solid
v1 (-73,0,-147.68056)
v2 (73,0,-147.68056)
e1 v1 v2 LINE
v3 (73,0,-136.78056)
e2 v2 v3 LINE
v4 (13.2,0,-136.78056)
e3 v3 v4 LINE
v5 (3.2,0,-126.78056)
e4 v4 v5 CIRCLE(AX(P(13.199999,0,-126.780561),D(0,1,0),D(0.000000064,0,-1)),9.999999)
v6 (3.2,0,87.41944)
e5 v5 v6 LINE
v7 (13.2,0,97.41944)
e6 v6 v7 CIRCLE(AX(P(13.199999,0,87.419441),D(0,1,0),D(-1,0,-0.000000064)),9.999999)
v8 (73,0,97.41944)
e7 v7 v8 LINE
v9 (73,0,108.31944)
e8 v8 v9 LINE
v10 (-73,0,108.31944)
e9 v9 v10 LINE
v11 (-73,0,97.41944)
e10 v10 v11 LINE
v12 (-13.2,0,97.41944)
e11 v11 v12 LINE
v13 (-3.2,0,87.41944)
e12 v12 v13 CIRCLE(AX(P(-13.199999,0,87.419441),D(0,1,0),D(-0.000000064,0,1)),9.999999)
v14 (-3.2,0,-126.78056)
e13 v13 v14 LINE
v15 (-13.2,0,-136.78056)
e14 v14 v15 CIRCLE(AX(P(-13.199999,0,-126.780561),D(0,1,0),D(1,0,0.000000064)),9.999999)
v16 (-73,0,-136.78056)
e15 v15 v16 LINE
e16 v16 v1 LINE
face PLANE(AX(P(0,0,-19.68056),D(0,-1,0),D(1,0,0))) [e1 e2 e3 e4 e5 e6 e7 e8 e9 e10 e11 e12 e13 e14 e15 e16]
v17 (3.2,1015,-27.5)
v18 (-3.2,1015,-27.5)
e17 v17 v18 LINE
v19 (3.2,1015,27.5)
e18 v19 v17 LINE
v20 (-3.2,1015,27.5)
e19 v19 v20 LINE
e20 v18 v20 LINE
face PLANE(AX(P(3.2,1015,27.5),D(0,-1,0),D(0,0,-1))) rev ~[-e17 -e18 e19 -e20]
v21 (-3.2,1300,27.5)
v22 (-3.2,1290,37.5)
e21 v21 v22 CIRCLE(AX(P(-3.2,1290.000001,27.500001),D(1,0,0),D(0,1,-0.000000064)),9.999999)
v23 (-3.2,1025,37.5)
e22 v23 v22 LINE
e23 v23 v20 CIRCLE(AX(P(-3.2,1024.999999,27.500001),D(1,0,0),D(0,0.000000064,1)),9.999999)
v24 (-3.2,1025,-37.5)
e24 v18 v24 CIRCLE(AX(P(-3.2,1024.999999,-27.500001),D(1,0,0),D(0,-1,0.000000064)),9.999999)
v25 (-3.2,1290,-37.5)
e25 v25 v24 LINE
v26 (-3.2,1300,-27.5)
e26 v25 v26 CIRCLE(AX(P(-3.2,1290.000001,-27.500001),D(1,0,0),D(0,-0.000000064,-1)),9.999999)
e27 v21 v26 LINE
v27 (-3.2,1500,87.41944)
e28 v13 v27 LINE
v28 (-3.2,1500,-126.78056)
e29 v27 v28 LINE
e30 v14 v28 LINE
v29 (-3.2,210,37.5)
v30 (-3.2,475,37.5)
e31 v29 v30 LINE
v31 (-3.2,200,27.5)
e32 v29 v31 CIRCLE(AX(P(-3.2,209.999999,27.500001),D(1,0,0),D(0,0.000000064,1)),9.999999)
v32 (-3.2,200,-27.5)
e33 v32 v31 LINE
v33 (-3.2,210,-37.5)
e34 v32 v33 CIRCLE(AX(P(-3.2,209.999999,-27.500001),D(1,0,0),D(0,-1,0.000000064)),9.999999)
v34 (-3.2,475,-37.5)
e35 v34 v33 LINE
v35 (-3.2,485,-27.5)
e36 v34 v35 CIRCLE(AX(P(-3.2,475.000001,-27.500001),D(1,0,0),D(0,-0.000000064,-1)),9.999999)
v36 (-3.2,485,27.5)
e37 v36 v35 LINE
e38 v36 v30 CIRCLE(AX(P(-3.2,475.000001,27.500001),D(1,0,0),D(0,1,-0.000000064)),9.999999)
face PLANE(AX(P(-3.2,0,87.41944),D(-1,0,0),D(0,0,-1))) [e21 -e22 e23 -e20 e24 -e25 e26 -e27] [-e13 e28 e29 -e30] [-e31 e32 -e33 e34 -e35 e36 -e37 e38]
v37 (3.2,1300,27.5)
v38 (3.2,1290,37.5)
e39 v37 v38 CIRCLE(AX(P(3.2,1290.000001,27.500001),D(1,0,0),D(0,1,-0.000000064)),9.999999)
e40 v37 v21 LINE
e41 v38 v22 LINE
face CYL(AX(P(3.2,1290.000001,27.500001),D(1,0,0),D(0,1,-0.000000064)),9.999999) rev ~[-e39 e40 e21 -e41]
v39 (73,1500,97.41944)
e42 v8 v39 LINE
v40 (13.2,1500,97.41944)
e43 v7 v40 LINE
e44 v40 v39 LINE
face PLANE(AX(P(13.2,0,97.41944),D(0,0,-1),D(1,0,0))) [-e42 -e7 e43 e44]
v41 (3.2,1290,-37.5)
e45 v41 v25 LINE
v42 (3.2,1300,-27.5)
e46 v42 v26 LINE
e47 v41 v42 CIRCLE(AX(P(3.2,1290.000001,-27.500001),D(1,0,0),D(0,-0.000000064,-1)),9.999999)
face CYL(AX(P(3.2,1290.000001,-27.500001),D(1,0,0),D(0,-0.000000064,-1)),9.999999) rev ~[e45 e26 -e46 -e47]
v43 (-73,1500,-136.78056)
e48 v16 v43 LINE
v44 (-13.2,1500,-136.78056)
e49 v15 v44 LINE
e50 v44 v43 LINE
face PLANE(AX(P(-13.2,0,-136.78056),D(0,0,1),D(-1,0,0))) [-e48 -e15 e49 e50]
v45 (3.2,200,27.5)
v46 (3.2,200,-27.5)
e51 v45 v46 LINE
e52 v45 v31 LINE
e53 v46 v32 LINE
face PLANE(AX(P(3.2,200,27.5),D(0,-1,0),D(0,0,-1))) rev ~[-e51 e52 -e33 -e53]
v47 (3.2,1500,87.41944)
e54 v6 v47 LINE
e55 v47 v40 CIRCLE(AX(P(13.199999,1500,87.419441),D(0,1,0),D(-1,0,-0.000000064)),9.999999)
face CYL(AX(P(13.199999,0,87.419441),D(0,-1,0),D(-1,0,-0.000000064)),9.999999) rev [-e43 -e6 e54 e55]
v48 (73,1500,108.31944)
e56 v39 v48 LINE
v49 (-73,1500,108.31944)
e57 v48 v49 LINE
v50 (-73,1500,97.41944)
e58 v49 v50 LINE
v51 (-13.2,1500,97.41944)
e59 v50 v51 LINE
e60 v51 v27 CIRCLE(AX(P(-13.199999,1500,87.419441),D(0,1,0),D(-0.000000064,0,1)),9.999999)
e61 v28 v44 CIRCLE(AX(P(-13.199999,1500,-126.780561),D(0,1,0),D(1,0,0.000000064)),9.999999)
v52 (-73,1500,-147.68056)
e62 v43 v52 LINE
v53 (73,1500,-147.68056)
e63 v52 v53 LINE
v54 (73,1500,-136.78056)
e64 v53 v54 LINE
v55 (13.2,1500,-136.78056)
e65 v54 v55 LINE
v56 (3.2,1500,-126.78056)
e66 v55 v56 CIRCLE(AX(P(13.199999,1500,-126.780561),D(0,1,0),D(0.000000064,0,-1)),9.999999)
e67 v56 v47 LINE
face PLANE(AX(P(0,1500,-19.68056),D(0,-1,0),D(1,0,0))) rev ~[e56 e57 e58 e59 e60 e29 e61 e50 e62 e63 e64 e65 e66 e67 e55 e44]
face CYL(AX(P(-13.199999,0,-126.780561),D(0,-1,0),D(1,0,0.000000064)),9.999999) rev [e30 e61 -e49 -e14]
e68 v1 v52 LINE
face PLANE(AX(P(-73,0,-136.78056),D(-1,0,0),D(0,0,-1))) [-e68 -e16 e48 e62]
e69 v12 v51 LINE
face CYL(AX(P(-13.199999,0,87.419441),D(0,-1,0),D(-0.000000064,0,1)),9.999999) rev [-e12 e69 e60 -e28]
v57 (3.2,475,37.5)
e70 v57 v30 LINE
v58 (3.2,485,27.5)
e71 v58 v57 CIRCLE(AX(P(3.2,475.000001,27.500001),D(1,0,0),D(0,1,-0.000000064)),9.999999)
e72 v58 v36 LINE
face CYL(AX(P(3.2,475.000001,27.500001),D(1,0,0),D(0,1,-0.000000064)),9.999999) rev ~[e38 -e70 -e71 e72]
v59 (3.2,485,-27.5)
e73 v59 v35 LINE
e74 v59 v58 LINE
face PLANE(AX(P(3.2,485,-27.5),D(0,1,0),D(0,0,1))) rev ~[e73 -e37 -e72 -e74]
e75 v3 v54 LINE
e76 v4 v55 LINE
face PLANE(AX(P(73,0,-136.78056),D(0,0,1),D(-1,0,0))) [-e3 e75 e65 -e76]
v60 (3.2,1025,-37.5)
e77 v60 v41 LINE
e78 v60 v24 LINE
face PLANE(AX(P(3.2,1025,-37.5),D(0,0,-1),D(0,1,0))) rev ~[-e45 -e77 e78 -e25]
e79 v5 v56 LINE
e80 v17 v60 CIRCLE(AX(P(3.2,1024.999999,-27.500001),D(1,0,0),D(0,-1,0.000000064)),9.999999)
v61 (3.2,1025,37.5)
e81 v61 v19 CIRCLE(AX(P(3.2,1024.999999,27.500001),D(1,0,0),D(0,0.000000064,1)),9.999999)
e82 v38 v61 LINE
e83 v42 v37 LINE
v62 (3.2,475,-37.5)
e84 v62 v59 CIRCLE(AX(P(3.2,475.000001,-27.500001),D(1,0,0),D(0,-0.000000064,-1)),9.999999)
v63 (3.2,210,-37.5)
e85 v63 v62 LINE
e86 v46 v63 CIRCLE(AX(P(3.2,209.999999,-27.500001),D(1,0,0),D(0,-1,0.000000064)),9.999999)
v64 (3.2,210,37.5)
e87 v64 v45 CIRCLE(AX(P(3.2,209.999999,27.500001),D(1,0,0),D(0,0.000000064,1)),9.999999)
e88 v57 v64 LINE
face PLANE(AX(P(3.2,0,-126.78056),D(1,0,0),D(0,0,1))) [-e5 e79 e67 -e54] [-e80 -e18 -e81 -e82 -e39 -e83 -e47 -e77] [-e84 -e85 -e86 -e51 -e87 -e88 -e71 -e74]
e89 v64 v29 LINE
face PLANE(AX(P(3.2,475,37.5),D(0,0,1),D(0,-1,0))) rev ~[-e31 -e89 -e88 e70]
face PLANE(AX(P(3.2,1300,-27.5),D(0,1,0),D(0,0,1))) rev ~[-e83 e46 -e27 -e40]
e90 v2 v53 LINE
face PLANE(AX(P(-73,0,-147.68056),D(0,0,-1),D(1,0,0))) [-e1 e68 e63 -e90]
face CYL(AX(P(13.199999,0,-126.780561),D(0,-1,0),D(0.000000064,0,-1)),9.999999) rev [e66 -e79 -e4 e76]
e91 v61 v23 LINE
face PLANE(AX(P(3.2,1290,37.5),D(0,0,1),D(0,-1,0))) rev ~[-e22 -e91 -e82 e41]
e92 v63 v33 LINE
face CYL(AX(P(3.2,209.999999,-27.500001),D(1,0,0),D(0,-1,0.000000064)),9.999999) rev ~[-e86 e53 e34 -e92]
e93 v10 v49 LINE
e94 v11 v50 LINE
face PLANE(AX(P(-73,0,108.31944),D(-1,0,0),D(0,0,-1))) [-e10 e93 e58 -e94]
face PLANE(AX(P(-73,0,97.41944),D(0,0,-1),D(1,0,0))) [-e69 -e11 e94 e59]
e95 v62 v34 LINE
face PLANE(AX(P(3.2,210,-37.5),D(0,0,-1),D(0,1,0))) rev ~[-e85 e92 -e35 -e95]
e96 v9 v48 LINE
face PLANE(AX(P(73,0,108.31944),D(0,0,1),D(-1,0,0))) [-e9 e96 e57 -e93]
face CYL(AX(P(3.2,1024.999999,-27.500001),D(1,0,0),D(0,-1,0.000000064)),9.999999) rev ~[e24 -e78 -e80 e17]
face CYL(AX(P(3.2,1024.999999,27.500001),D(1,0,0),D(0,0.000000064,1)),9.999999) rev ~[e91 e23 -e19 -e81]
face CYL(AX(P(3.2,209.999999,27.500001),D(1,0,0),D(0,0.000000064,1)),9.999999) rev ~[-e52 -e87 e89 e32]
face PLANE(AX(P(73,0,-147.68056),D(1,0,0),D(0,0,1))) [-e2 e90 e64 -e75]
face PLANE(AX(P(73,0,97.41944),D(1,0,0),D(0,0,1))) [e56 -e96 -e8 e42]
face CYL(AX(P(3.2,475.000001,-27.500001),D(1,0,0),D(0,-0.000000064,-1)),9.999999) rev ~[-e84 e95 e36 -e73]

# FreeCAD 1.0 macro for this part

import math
import FreeCAD as App
import Part
import Sketcher

V = App.Vector
Q = App.Units.Quantity

doc = App.newDocument("Part")
body = doc.addObject("PartDesign::Body", "Body")

# Sketch on XZ plane
sketch1 = body.newObject("Sketcher::SketchObject", "Sketch")
sketch1.AttachmentSupport = (doc.getObject("XZ_Plane"), [""])
sketch1.MapMode = "FlatFace"
sketch1.addGeometry([
    Part.LineSegment(V(73, 108, 0), V(-73, 108, 0)),  # 0
    Part.LineSegment(V(-73, 108, 0), V(-73, 97, 0)),  # 1
    Part.LineSegment(V(-73, 97, 0), V(-13, 97, 0)),  # 2
    Part.ArcOfCircle(Part.Circle(V(-13, 87, 0), V(0, 0, 1), 10), math.radians(0), math.radians(90)),  # 3
    Part.LineSegment(V(-3, 87, 0), V(-3, -127, 0)),  # 4
    Part.ArcOfCircle(Part.Circle(V(-13, -127, 0), V(0, 0, 1), 10), math.radians(-90), math.radians(0)),  # 5
    Part.LineSegment(V(-13, -137, 0), V(-73, -137, 0)),  # 6
    Part.LineSegment(V(-73, -137, 0), V(-73, -148, 0)),  # 7
    Part.LineSegment(V(-73, -148, 0), V(73, -148, 0)),  # 8
    Part.LineSegment(V(73, -148, 0), V(73, -137, 0)),  # 9
    Part.LineSegment(V(73, -137, 0), V(13, -137, 0)),  # 10
    Part.ArcOfCircle(Part.Circle(V(13, -127, 0), V(0, 0, 1), 10), math.radians(180), math.radians(270)),  # 11
    Part.LineSegment(V(3, -127, 0), V(3, 87, 0)),  # 12
    Part.ArcOfCircle(Part.Circle(V(13, 87, 0), V(0, 0, 1), 10), math.radians(90), math.radians(180)),  # 13
    Part.LineSegment(V(13, 97, 0), V(73, 97, 0)),  # 14
    Part.LineSegment(V(73, 97, 0), V(73, 108, 0)),  # 15
], False)
sketch1.addConstraint([
    Sketcher.Constraint("Coincident", 0, 2, 1, 1),
    Sketcher.Constraint("Coincident", 1, 2, 2, 1),
    Sketcher.Constraint("Tangent", 2, 2, 3, 2),
    Sketcher.Constraint("Tangent", 3, 1, 4, 1),
    Sketcher.Constraint("Tangent", 4, 2, 5, 2),
    Sketcher.Constraint("Tangent", 5, 1, 6, 1),
    Sketcher.Constraint("Coincident", 6, 2, 7, 1),
    Sketcher.Constraint("Coincident", 7, 2, 8, 1),
    Sketcher.Constraint("Coincident", 8, 2, 9, 1),
    Sketcher.Constraint("Coincident", 9, 2, 10, 1),
    Sketcher.Constraint("Tangent", 10, 2, 11, 2),
    Sketcher.Constraint("Tangent", 11, 1, 12, 1),
    Sketcher.Constraint("Tangent", 12, 2, 13, 2),
    Sketcher.Constraint("Tangent", 13, 1, 14, 1),
    Sketcher.Constraint("Coincident", 14, 2, 15, 1),
    Sketcher.Constraint("Coincident", 15, 2, 0, 1),
    Sketcher.Constraint("Horizontal", 0),
    Sketcher.Constraint("Vertical", 1),
    Sketcher.Constraint("Horizontal", 2),
    Sketcher.Constraint("Vertical", 4),
    Sketcher.Constraint("Horizontal", 6),
    Sketcher.Constraint("Vertical", 7),
    Sketcher.Constraint("Horizontal", 8),
    Sketcher.Constraint("Vertical", 9),
    Sketcher.Constraint("Horizontal", 10),
    Sketcher.Constraint("Vertical", 12),
    Sketcher.Constraint("Horizontal", 14),
    Sketcher.Constraint("Vertical", 15),
    Sketcher.Constraint("Equal", 3, 5),
    Sketcher.Constraint("Equal", 5, 11),
    Sketcher.Constraint("Equal", 11, 13),
    Sketcher.Constraint("Symmetric", 5, 3, 11, 3, -2),
    Sketcher.Constraint("Symmetric", 1, 2, 14, 2, -2),
    Sketcher.Constraint("Vertical", 1, 2, 6, 2),
    Sketcher.Constraint("Vertical", 9, 2, 14, 2),
    Sketcher.Constraint("Equal", 1, 7),
    Sketcher.Constraint("Radius", 3, Q("9.999999 mm")),
    Sketcher.Constraint("DistanceX", 0, 2, 0, 1, Q("146 mm")),
    Sketcher.Constraint("DistanceX", 2, 1, 2, 2, Q("59.8 mm")),
    Sketcher.Constraint("DistanceY", 1, 2, 1, 1, Q("10.9 mm")),
    Sketcher.Constraint("DistanceY", 4, 2, 4, 1, Q("214.2 mm")),
    Sketcher.Constraint("DistanceY", -1, 1, 3, 3, Q("87.419441 mm")),
])
pad1 = body.newObject("PartDesign::Pad", "Pad")
pad1.Profile = sketch1
pad1.Length = 1500
pad1.Reversed = True

# Sketch on YZ plane
sketch2 = body.newObject("Sketcher::SketchObject", "Sketch001")
sketch2.AttachmentSupport = (doc.getObject("YZ_Plane"), [""])
sketch2.MapMode = "FlatFace"
sketch2.AttachmentOffset = App.Placement(V(0, 0, 3.2), App.Rotation())
sketch2.addGeometry([
    Part.LineSegment(V(475, 38, 0), V(210, 38, 0)),  # 0
    Part.ArcOfCircle(Part.Circle(V(210, 28, 0), V(0, 0, 1), 10), math.radians(90), math.radians(180)),  # 1
    Part.LineSegment(V(200, 28, 0), V(200, -28, 0)),  # 2
    Part.ArcOfCircle(Part.Circle(V(210, -28, 0), V(0, 0, 1), 10), math.radians(180), math.radians(270)),  # 3
    Part.LineSegment(V(210, -38, 0), V(475, -38, 0)),  # 4
    Part.ArcOfCircle(Part.Circle(V(475, -28, 0), V(0, 0, 1), 10), math.radians(-90), math.radians(0)),  # 5
    Part.LineSegment(V(485, -28, 0), V(485, 28, 0)),  # 6
    Part.ArcOfCircle(Part.Circle(V(475, 28, 0), V(0, 0, 1), 10), math.radians(0), math.radians(90)),  # 7
    Part.LineSegment(V(1290, 38, 0), V(1025, 38, 0)),  # 8
    Part.ArcOfCircle(Part.Circle(V(1025, 28, 0), V(0, 0, 1), 10), math.radians(90), math.radians(180)),  # 9
    Part.LineSegment(V(1015, 28, 0), V(1015, -28, 0)),  # 10
    Part.ArcOfCircle(Part.Circle(V(1025, -28, 0), V(0, 0, 1), 10), math.radians(180), math.radians(270)),  # 11
    Part.LineSegment(V(1025, -38, 0), V(1290, -38, 0)),  # 12
    Part.ArcOfCircle(Part.Circle(V(1290, -28, 0), V(0, 0, 1), 10), math.radians(-90), math.radians(0)),  # 13
    Part.LineSegment(V(1300, -28, 0), V(1300, 28, 0)),  # 14
    Part.ArcOfCircle(Part.Circle(V(1290, 28, 0), V(0, 0, 1), 10), math.radians(0), math.radians(90)),  # 15
], False)
sketch2.addConstraint([
    Sketcher.Constraint("Tangent", 0, 2, 1, 1),
    Sketcher.Constraint("Tangent", 1, 2, 2, 1),
    Sketcher.Constraint("Tangent", 2, 2, 3, 1),
    Sketcher.Constraint("Tangent", 3, 2, 4, 1),
    Sketcher.Constraint("Tangent", 4, 2, 5, 1),
    Sketcher.Constraint("Tangent", 5, 2, 6, 1),
    Sketcher.Constraint("Tangent", 6, 2, 7, 1),
    Sketcher.Constraint("Tangent", 7, 2, 0, 1),
    Sketcher.Constraint("Tangent", 8, 2, 9, 1),
    Sketcher.Constraint("Tangent", 9, 2, 10, 1),
    Sketcher.Constraint("Tangent", 10, 2, 11, 1),
    Sketcher.Constraint("Tangent", 11, 2, 12, 1),
    Sketcher.Constraint("Tangent", 12, 2, 13, 1),
    Sketcher.Constraint("Tangent", 13, 2, 14, 1),
    Sketcher.Constraint("Tangent", 14, 2, 15, 1),
    Sketcher.Constraint("Tangent", 15, 2, 8, 1),
    Sketcher.Constraint("Horizontal", 0),
    Sketcher.Constraint("Vertical", 2),
    Sketcher.Constraint("Horizontal", 4),
    Sketcher.Constraint("Vertical", 6),
    Sketcher.Constraint("Horizontal", 8),
    Sketcher.Constraint("Vertical", 10),
    Sketcher.Constraint("Horizontal", 12),
    Sketcher.Constraint("Vertical", 14),
    Sketcher.Constraint("Equal", 1, 3),
    Sketcher.Constraint("Equal", 3, 5),
    Sketcher.Constraint("Equal", 5, 7),
    Sketcher.Constraint("Equal", 7, 9),
    Sketcher.Constraint("Equal", 9, 11),
    Sketcher.Constraint("Equal", 11, 13),
    Sketcher.Constraint("Equal", 13, 15),
    Sketcher.Constraint("Horizontal", 7, 3, 9, 3),
    Sketcher.Constraint("Horizontal", 5, 3, 11, 3),
    Sketcher.Constraint("Equal", 4, 8),
    Sketcher.Constraint("Radius", 1, Q("9.999999 mm")),
    Sketcher.Constraint("DistanceX", 0, 2, 0, 1, Q("265 mm")),
    Sketcher.Constraint("DistanceY", 2, 2, 2, 1, Q("55 mm")),
    Sketcher.Constraint("DistanceX", -1, 1, 1, 3, Q("209.999999 mm")),
    Sketcher.Constraint("DistanceX", -1, 1, 9, 3, Q("1024.999999 mm")),
    Sketcher.Constraint("DistanceY", -1, 1, 1, 3, Q("27.500001 mm")),
])
pocket1 = body.newObject("PartDesign::Pocket", "Pocket")
pocket1.Profile = sketch2
pocket1.Type = "ThroughAll"

doc.recompute()
